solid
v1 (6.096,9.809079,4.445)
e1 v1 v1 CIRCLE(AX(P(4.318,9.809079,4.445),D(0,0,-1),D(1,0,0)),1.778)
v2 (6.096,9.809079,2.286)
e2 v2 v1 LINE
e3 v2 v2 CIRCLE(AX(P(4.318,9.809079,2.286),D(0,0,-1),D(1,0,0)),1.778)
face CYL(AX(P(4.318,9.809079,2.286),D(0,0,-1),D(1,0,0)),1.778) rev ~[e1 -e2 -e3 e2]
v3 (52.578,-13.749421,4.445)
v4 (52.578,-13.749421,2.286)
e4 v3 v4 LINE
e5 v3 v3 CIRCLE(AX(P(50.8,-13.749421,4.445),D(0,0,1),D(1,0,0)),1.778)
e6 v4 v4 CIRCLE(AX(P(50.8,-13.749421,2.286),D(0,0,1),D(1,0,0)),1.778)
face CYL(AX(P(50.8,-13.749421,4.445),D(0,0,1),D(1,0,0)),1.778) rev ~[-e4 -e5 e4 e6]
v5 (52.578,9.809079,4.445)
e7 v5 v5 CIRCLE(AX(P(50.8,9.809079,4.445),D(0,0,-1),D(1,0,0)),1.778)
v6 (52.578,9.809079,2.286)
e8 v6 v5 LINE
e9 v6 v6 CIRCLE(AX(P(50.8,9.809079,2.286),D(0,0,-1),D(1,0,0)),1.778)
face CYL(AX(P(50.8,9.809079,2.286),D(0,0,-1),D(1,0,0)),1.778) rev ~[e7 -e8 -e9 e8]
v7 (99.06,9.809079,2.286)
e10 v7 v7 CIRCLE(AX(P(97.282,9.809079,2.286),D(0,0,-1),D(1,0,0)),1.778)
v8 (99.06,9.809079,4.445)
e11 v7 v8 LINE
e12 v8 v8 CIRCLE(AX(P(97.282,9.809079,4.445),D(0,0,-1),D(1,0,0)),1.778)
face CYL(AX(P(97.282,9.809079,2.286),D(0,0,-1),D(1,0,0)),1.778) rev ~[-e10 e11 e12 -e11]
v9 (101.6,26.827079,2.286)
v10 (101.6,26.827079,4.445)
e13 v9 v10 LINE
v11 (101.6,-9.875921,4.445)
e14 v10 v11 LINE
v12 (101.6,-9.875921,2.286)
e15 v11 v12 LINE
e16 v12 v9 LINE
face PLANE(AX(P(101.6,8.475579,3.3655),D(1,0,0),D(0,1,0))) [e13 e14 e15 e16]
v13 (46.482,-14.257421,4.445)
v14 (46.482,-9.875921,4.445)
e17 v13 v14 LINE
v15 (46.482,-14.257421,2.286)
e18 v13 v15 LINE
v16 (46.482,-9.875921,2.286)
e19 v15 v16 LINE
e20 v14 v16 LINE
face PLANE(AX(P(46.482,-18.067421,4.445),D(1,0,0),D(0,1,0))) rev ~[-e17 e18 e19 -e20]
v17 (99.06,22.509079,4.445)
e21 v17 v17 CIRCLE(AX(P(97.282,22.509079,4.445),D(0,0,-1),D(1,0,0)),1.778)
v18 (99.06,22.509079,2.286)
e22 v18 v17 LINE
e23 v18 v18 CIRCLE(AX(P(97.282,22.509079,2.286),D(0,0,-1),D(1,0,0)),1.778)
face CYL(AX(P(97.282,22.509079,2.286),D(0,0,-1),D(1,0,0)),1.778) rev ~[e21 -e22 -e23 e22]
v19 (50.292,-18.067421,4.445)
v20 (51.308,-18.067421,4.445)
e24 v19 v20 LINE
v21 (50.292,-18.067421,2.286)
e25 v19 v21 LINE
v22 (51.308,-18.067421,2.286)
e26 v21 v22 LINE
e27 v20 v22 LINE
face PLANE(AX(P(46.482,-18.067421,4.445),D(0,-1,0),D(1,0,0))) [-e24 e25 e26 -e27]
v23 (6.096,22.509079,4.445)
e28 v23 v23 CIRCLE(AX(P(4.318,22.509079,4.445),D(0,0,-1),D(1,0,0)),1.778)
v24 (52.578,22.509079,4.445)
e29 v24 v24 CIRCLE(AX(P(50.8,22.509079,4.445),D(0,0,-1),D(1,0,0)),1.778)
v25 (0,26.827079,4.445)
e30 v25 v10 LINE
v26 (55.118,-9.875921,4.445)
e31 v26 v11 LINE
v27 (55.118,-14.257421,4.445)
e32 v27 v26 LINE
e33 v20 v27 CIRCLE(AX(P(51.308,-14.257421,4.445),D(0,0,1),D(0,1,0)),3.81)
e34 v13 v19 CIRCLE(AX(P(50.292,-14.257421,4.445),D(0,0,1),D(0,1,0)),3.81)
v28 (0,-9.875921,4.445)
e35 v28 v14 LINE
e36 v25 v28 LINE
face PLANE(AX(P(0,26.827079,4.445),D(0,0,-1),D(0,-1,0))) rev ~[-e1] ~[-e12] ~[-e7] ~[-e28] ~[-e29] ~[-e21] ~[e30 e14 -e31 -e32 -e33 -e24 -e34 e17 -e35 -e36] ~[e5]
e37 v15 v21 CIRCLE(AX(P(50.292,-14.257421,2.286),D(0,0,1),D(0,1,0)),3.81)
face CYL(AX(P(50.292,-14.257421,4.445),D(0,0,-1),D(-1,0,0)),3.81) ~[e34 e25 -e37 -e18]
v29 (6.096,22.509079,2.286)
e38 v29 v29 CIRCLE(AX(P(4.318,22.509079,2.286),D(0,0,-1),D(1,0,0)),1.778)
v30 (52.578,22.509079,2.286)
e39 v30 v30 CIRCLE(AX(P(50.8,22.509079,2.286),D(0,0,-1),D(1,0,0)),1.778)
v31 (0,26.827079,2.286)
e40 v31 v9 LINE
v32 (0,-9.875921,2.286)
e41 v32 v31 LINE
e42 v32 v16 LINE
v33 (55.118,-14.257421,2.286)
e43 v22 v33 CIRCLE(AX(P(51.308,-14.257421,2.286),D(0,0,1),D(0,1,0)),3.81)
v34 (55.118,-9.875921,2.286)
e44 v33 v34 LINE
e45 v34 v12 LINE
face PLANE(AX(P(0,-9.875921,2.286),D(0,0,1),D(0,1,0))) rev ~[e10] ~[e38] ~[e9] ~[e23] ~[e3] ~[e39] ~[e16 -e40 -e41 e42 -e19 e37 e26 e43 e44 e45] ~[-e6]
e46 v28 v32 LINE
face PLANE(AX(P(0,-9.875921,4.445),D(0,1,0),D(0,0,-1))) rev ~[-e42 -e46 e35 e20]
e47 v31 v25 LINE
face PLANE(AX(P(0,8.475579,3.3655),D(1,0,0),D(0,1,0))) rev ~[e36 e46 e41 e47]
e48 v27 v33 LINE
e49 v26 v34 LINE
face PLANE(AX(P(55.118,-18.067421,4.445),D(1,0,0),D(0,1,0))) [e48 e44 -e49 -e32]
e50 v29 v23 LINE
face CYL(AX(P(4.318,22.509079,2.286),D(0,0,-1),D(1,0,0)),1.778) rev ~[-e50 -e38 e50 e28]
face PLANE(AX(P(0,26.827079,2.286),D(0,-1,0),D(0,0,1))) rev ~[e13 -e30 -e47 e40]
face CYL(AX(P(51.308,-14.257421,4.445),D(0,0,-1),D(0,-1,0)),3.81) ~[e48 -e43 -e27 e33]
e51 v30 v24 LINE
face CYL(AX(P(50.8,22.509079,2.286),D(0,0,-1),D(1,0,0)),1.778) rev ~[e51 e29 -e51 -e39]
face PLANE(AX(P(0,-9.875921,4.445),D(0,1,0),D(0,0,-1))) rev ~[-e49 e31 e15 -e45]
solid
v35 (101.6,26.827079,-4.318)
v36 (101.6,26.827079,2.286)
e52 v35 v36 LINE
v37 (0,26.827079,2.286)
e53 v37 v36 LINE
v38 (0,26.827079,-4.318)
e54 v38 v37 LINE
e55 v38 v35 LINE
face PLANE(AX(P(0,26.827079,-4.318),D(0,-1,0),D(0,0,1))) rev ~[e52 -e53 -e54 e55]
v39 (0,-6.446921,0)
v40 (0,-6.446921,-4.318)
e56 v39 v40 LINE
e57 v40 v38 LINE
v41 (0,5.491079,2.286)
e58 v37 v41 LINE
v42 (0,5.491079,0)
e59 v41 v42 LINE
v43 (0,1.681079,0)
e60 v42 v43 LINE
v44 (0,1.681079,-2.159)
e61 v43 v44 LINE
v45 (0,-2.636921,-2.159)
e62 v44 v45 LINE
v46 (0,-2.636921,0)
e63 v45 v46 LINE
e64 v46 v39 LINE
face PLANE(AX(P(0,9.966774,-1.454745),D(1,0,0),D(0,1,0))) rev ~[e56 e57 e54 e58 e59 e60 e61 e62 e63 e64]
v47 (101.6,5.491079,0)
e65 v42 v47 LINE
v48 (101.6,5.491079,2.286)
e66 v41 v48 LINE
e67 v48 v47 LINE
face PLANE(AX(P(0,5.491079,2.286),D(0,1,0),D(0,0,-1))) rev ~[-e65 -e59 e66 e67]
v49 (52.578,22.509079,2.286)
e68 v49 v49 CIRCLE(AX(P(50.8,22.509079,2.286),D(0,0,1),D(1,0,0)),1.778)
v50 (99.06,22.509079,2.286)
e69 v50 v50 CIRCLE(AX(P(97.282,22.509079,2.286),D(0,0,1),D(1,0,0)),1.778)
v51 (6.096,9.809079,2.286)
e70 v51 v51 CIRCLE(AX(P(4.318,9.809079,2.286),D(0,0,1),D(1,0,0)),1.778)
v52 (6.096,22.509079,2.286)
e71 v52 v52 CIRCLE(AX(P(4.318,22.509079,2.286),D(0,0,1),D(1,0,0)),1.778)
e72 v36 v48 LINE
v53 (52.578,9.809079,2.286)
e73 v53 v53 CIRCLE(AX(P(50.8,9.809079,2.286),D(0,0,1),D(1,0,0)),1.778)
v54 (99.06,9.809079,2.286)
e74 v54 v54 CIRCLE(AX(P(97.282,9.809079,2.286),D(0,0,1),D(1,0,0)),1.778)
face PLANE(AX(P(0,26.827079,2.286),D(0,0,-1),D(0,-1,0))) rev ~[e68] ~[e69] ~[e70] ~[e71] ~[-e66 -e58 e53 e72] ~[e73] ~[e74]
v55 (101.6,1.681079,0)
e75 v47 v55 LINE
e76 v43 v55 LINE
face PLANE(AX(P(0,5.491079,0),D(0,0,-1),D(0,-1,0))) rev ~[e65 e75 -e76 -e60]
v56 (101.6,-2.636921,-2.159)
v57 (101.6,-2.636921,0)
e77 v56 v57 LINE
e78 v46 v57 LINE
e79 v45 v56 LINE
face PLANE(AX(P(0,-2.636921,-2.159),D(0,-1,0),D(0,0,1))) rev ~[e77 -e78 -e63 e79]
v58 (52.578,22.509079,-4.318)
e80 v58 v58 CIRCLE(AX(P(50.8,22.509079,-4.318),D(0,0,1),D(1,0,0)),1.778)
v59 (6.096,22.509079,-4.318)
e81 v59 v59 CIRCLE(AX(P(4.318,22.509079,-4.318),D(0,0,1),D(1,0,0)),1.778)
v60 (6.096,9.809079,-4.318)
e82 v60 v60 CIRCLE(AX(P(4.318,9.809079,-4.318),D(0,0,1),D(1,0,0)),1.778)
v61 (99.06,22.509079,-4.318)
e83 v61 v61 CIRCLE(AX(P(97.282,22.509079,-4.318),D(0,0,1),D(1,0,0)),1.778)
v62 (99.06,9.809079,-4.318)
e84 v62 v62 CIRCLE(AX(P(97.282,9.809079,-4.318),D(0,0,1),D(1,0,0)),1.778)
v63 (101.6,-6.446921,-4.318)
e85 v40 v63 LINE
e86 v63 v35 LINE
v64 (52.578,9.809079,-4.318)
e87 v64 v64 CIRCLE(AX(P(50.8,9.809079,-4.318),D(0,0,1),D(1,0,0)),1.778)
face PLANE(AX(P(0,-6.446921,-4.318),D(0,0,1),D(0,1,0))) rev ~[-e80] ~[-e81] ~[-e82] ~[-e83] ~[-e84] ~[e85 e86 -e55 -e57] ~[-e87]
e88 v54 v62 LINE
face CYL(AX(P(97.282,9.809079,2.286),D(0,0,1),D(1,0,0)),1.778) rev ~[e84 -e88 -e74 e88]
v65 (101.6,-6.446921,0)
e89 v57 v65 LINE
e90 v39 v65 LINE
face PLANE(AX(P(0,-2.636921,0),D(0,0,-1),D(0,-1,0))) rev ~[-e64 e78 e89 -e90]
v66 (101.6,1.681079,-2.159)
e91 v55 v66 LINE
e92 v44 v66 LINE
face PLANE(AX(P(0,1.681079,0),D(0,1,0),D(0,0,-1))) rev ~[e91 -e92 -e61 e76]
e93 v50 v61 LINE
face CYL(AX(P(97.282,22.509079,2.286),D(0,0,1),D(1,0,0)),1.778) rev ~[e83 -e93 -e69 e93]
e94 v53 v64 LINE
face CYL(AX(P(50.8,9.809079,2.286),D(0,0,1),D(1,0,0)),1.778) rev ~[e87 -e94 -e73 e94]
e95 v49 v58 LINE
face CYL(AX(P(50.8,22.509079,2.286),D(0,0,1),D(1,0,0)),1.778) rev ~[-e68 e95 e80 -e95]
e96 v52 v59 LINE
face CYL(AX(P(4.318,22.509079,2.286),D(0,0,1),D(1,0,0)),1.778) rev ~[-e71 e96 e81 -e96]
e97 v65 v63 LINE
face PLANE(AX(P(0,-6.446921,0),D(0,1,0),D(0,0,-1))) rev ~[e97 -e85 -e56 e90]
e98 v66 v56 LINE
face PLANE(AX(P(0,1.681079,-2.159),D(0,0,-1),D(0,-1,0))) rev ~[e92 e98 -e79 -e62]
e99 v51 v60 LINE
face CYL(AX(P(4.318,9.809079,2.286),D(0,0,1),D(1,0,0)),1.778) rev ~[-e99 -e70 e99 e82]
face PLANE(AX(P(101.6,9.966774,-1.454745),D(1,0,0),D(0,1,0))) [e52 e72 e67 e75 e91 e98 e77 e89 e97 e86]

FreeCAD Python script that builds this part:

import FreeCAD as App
import Part
import Sketcher

V = App.Vector
Q = App.Units.Quantity


def edges_at(feature, points):
    """Names of the edges that pass closest to the given points."""
    edges = feature.Shape.Edges
    near = lambda p: min(range(len(edges)), key=lambda i: edges[i].distToShape(Part.Vertex(*p))[0])
    return sorted({f"Edge{near(p) + 1}" for p in points})

doc = App.newDocument("Part")
body = doc.addObject("PartDesign::Body", "Body")

sketch1 = body.newObject("Sketcher::SketchObject", "Sketch")
sketch1.AttachmentSupport = (doc.getObject("YZ_Plane"), [""])
sketch1.MapMode = "FlatFace"
sketch1.addGeometry(Part.LineSegment(V(-6.4, 0, 0), V(-6.4, -4.3, 0)), False)
sketch1.addGeometry(Part.LineSegment(V(-6.4, -4.3, 0), V(26.8, -4.3, 0)), False)
sketch1.addGeometry(Part.LineSegment(V(26.8, -4.3, 0), V(26.8, 2.3, 0)), False)
sketch1.addGeometry(Part.LineSegment(V(26.8, 2.3, 0), V(5.5, 2.3, 0)), False)
sketch1.addGeometry(Part.LineSegment(V(5.5, 2.3, 0), V(5.5, 0, 0)), False)
sketch1.addGeometry(Part.LineSegment(V(5.5, 0, 0), V(1.7, 0, 0)), False)
sketch1.addGeometry(Part.LineSegment(V(1.7, 0, 0), V(1.7, -2.2, 0)), False)
sketch1.addGeometry(Part.LineSegment(V(1.7, -2.2, 0), V(-2.6, -2.2, 0)), False)
sketch1.addGeometry(Part.LineSegment(V(-2.6, -2.2, 0), V(-2.6, 0, 0)), False)
sketch1.addGeometry(Part.LineSegment(V(-2.6, 0, 0), V(-6.4, 0, 0)), False)
sketch1.addConstraint(Sketcher.Constraint("Coincident", 0, 2, 1, 1))
sketch1.addConstraint(Sketcher.Constraint("Coincident", 1, 2, 2, 1))
sketch1.addConstraint(Sketcher.Constraint("Coincident", 2, 2, 3, 1))
sketch1.addConstraint(Sketcher.Constraint("Coincident", 3, 2, 4, 1))
sketch1.addConstraint(Sketcher.Constraint("Coincident", 4, 2, 5, 1))
sketch1.addConstraint(Sketcher.Constraint("Coincident", 5, 2, 6, 1))
sketch1.addConstraint(Sketcher.Constraint("Coincident", 6, 2, 7, 1))
sketch1.addConstraint(Sketcher.Constraint("Coincident", 7, 2, 8, 1))
sketch1.addConstraint(Sketcher.Constraint("Coincident", 8, 2, 9, 1))
sketch1.addConstraint(Sketcher.Constraint("Coincident", 9, 2, 0, 1))
sketch1.addConstraint(Sketcher.Constraint("Vertical", 0))
sketch1.addConstraint(Sketcher.Constraint("Horizontal", 1))
sketch1.addConstraint(Sketcher.Constraint("Vertical", 2))
sketch1.addConstraint(Sketcher.Constraint("Horizontal", 3))
sketch1.addConstraint(Sketcher.Constraint("Vertical", 4))
sketch1.addConstraint(Sketcher.Constraint("Horizontal", 5))
sketch1.addConstraint(Sketcher.Constraint("Vertical", 6))
sketch1.addConstraint(Sketcher.Constraint("Horizontal", 7))
sketch1.addConstraint(Sketcher.Constraint("Vertical", 8))
sketch1.addConstraint(Sketcher.Constraint("Horizontal", 9))
sketch1.addConstraint(Sketcher.Constraint("PointOnObject", 4, 2, -1))
sketch1.addConstraint(Sketcher.Constraint("PointOnObject", 8, 2, -1))
sketch1.addConstraint(Sketcher.Constraint("Equal", 5, 9))
sketch1.addConstraint(Sketcher.Constraint("Equal", 7, 0))
sketch1.addConstraint(Sketcher.Constraint("DistanceX", 1, 1, 1, 2, Q("1.31 in")))
sketch1.addConstraint(Sketcher.Constraint("DistanceX", 3, 2, 3, 1, Q("0.84 in")))
sketch1.addConstraint(Sketcher.Constraint("DistanceX", 5, 2, 5, 1, Q("0.15 in")))
sketch1.addConstraint(Sketcher.Constraint("DistanceY", 2, 1, 2, 2, Q("0.26 in")))
sketch1.addConstraint(Sketcher.Constraint("DistanceY", 6, 2, 6, 1, Q("0.085 in")))
sketch1.addConstraint(Sketcher.Constraint("DistanceX", 0, 2, -1, 1, Q("6.446921 mm")))
pad1 = body.newObject("PartDesign::Pad", "Pad")
pad1.Profile = sketch1
pad1.Length = Q("4 in")

sketch2 = body.newObject("Sketcher::SketchObject", "Sketch001")
sketch2.AttachmentSupport = (doc.getObject("XY_Plane"), [""])
sketch2.MapMode = "FlatFace"
sketch2.AttachmentOffset = App.Placement(V(0, 0, 0.09 * 25.4), App.Rotation())
sketch2.addGeometry(Part.Circle(V(97.3, 9.8, 0), V(0, 0, 1), 1.8), False)
sketch2.addGeometry(Part.Circle(V(97.3, 22.5, 0), V(0, 0, 1), 1.8), False)
sketch2.addGeometry(Part.Circle(V(4.3, 9.8, 0), V(0, 0, 1), 1.8), False)
sketch2.addGeometry(Part.Circle(V(4.3, 22.5, 0), V(0, 0, 1), 1.8), False)
sketch2.addGeometry(Part.Circle(V(50.8, 9.8, 0), V(0, 0, 1), 1.8), False)
sketch2.addGeometry(Part.Circle(V(50.8, 22.5, 0), V(0, 0, 1), 1.8), False)
sketch2.addConstraint(Sketcher.Constraint("Equal", 0, 1))
sketch2.addConstraint(Sketcher.Constraint("Equal", 1, 2))
sketch2.addConstraint(Sketcher.Constraint("Equal", 2, 3))
sketch2.addConstraint(Sketcher.Constraint("Equal", 3, 4))
sketch2.addConstraint(Sketcher.Constraint("Equal", 4, 5))
sketch2.addConstraint(Sketcher.Constraint("Horizontal", 0, 3, 2, 3))
sketch2.addConstraint(Sketcher.Constraint("Horizontal", 1, 3, 3, 3))
sketch2.addConstraint(Sketcher.Constraint("Horizontal", 2, 3, 4, 3))
sketch2.addConstraint(Sketcher.Constraint("Horizontal", 3, 3, 5, 3))
sketch2.addConstraint(Sketcher.Constraint("Vertical", 0, 3, 1, 3))
sketch2.addConstraint(Sketcher.Constraint("Vertical", 2, 3, 3, 3))
sketch2.addConstraint(Sketcher.Constraint("Vertical", 4, 3, 5, 3))
sketch2.addConstraint(Sketcher.Constraint("Diameter", 0, Q("0.14 in")))
sketch2.addConstraint(Sketcher.Constraint("DistanceX", -1, 1, 4, 3, Q("2 in")))
sketch2.addConstraint(Sketcher.Constraint("DistanceY", 0, 3, 1, 3, Q("0.5 in")))
sketch2.addConstraint(Sketcher.Constraint("DistanceX", -1, 1, 0, 3, Q("3.83 in")))
sketch2.addConstraint(Sketcher.Constraint("DistanceX", -1, 1, 2, 3, Q("0.17 in")))
sketch2.addConstraint(Sketcher.Constraint("DistanceY", -1, 1, 0, 3, Q("9.809079 mm")))
pocket1 = body.newObject("PartDesign::Pocket", "Pocket")
pocket1.Profile = sketch2
pocket1.Type = "ThroughAll"
body2 = doc.addObject("PartDesign::Body", "Body001")

sketch3 = body2.newObject("Sketcher::SketchObject", "Sketch002")
sketch3.AttachmentSupport = (doc.getObject("YZ_Plane001"), [""])
sketch3.MapMode = "FlatFace"
sketch3.addGeometry(Part.LineSegment(V(-9.9, 4.4, 0), V(-9.9, 2.3, 0)), False)
sketch3.addGeometry(Part.LineSegment(V(-9.9, 2.3, 0), V(26.8, 2.3, 0)), False)
sketch3.addGeometry(Part.LineSegment(V(26.8, 2.3, 0), V(26.8, 4.4, 0)), False)
sketch3.addGeometry(Part.LineSegment(V(26.8, 4.4, 0), V(-9.9, 4.4, 0)), False)
sketch3.addConstraint(Sketcher.Constraint("Coincident", 0, 2, 1, 1))
sketch3.addConstraint(Sketcher.Constraint("Coincident", 1, 2, 2, 1))
sketch3.addConstraint(Sketcher.Constraint("Coincident", 2, 2, 3, 1))
sketch3.addConstraint(Sketcher.Constraint("Coincident", 3, 2, 0, 1))
sketch3.addConstraint(Sketcher.Constraint("Vertical", 0))
sketch3.addConstraint(Sketcher.Constraint("Horizontal", 1))
sketch3.addConstraint(Sketcher.Constraint("Vertical", 2))
sketch3.addConstraint(Sketcher.Constraint("Horizontal", 3))
sketch3.addConstraint(Sketcher.Constraint("DistanceX", 1, 1, 1, 2, Q("1.445 in")))
sketch3.addConstraint(Sketcher.Constraint("DistanceY", 0, 2, 0, 1, Q("0.085 in")))
sketch3.addConstraint(Sketcher.Constraint("DistanceY", -1, 1, 0, 2, Q("0.09 in")))
sketch3.addConstraint(Sketcher.Constraint("DistanceX", 0, 2, -1, 1, Q("9.875921 mm")))
pad2 = body2.newObject("PartDesign::Pad", "Pad001")
pad2.Profile = sketch3
pad2.Length = Q("4 in")

sketch4 = body2.newObject("Sketcher::SketchObject", "Sketch003")
sketch4.AttachmentSupport = (doc.getObject("XY_Plane001"), [""])
sketch4.MapMode = "FlatFace"
sketch4.AttachmentOffset = App.Placement(V(0, 0, 0.09 * 25.4), App.Rotation())
sketch4.addGeometry(Part.Circle(V(97.3, 9.8, 0), V(0, 0, 1), 1.8), False)
sketch4.addGeometry(Part.Circle(V(50.8, 9.8, 0), V(0, 0, 1), 1.8), False)
sketch4.addGeometry(Part.Circle(V(4.3, 9.8, 0), V(0, 0, 1), 1.8), False)
sketch4.addGeometry(Part.Circle(V(4.3, 22.5, 0), V(0, 0, 1), 1.8), False)
sketch4.addGeometry(Part.Circle(V(50.8, 22.5, 0), V(0, 0, 1), 1.8), False)
sketch4.addGeometry(Part.Circle(V(97.3, 22.5, 0), V(0, 0, 1), 1.8), False)
sketch4.addConstraint(Sketcher.Constraint("Equal", 0, 1))
sketch4.addConstraint(Sketcher.Constraint("Equal", 1, 2))
sketch4.addConstraint(Sketcher.Constraint("Equal", 2, 3))
sketch4.addConstraint(Sketcher.Constraint("Equal", 3, 4))
sketch4.addConstraint(Sketcher.Constraint("Equal", 4, 5))
sketch4.addConstraint(Sketcher.Constraint("Horizontal", 0, 3, 1, 3))
sketch4.addConstraint(Sketcher.Constraint("Horizontal", 1, 3, 2, 3))
sketch4.addConstraint(Sketcher.Constraint("Horizontal", 3, 3, 4, 3))
sketch4.addConstraint(Sketcher.Constraint("Horizontal", 4, 3, 5, 3))
sketch4.addConstraint(Sketcher.Constraint("Vertical", 2, 3, 3, 3))
sketch4.addConstraint(Sketcher.Constraint("Vertical", 1, 3, 4, 3))
sketch4.addConstraint(Sketcher.Constraint("Vertical", 0, 3, 5, 3))
sketch4.addConstraint(Sketcher.Constraint("Diameter", 0, Q("0.14 in")))
sketch4.addConstraint(Sketcher.Constraint("DistanceX", -1, 1, 1, 3, Q("2 in")))
sketch4.addConstraint(Sketcher.Constraint("DistanceY", 2, 3, 3, 3, Q("0.5 in")))
sketch4.addConstraint(Sketcher.Constraint("DistanceX", -1, 1, 0, 3, Q("3.83 in")))
sketch4.addConstraint(Sketcher.Constraint("DistanceX", -1, 1, 2, 3, Q("0.17 in")))
sketch4.addConstraint(Sketcher.Constraint("DistanceY", -1, 1, 0, 3, Q("9.809079 mm")))
pocket2 = body2.newObject("PartDesign::Pocket", "Pocket001")
pocket2.Profile = sketch4
pocket2.Type = "ThroughAll"
pocket2.Reversed = True

sketch5 = body2.newObject("Sketcher::SketchObject", "Sketch004")
sketch5.AttachmentSupport = (doc.getObject("XY_Plane001"), [""])
sketch5.MapMode = "FlatFace"
sketch5.AttachmentOffset = App.Placement(V(0, 0, 0.175 * 25.4), App.Rotation())
sketch5.addGeometry(Part.LineSegment(V(46.5, -9.9, 0), V(46.5, -18.1, 0)), False)
sketch5.addGeometry(Part.LineSegment(V(46.5, -18.1, 0), V(55.1, -18.1, 0)), False)
sketch5.addGeometry(Part.LineSegment(V(55.1, -18.1, 0), V(55.1, -9.9, 0)), False)
sketch5.addGeometry(Part.LineSegment(V(55.1, -9.9, 0), V(46.5, -9.9, 0)), False)
sketch5.addGeometry(Part.Circle(V(50.8, -13.7, 0), V(0, 0, 1), 1.8), False)
sketch5.addConstraint(Sketcher.Constraint("Coincident", 0, 2, 1, 1))
sketch5.addConstraint(Sketcher.Constraint("Coincident", 1, 2, 2, 1))
sketch5.addConstraint(Sketcher.Constraint("Coincident", 2, 2, 3, 1))
sketch5.addConstraint(Sketcher.Constraint("Coincident", 3, 2, 0, 1))
sketch5.addConstraint(Sketcher.Constraint("Vertical", 0))
sketch5.addConstraint(Sketcher.Constraint("Horizontal", 1))
sketch5.addConstraint(Sketcher.Constraint("Vertical", 2))
sketch5.addConstraint(Sketcher.Constraint("Horizontal", 3))
sketch5.addConstraint(Sketcher.Constraint("Diameter", 4, Q("0.14 in")))
sketch5.addConstraint(Sketcher.Constraint("DistanceX", -1, 1, 4, 3, Q("2 in")))
sketch5.addConstraint(Sketcher.Constraint("DistanceX", 1, 1, 1, 2, Q("0.34 in")))
sketch5.addConstraint(Sketcher.Constraint("DistanceX", -1, 1, 0, 2, Q("1.83 in")))
sketch5.addConstraint(Sketcher.Constraint("DistanceY", 0, 2, 4, 3, Q("0.17 in")))
sketch5.addConstraint(Sketcher.Constraint("DistanceY", 0, 2, 0, 1, Q("0.3225 in")))
sketch5.addConstraint(Sketcher.Constraint("DistanceY", 4, 3, -1, 1, Q("13.749421 mm")))
pad3 = body2.newObject("PartDesign::Pad", "Pad002")
pad3.Profile = sketch5
pad3.Length = Q("0.085 in")
pad3.Reversed = True
doc.recompute()

fillet = body2.newObject("PartDesign::Fillet", "Fillet")
fillet.Base = (pad3, edges_at(pad3, [(55.118, -18.067, 3.365), (46.482, -18.067, 3.365)]))
fillet.Radius = Q("0.15 in")

doc.recompute()
